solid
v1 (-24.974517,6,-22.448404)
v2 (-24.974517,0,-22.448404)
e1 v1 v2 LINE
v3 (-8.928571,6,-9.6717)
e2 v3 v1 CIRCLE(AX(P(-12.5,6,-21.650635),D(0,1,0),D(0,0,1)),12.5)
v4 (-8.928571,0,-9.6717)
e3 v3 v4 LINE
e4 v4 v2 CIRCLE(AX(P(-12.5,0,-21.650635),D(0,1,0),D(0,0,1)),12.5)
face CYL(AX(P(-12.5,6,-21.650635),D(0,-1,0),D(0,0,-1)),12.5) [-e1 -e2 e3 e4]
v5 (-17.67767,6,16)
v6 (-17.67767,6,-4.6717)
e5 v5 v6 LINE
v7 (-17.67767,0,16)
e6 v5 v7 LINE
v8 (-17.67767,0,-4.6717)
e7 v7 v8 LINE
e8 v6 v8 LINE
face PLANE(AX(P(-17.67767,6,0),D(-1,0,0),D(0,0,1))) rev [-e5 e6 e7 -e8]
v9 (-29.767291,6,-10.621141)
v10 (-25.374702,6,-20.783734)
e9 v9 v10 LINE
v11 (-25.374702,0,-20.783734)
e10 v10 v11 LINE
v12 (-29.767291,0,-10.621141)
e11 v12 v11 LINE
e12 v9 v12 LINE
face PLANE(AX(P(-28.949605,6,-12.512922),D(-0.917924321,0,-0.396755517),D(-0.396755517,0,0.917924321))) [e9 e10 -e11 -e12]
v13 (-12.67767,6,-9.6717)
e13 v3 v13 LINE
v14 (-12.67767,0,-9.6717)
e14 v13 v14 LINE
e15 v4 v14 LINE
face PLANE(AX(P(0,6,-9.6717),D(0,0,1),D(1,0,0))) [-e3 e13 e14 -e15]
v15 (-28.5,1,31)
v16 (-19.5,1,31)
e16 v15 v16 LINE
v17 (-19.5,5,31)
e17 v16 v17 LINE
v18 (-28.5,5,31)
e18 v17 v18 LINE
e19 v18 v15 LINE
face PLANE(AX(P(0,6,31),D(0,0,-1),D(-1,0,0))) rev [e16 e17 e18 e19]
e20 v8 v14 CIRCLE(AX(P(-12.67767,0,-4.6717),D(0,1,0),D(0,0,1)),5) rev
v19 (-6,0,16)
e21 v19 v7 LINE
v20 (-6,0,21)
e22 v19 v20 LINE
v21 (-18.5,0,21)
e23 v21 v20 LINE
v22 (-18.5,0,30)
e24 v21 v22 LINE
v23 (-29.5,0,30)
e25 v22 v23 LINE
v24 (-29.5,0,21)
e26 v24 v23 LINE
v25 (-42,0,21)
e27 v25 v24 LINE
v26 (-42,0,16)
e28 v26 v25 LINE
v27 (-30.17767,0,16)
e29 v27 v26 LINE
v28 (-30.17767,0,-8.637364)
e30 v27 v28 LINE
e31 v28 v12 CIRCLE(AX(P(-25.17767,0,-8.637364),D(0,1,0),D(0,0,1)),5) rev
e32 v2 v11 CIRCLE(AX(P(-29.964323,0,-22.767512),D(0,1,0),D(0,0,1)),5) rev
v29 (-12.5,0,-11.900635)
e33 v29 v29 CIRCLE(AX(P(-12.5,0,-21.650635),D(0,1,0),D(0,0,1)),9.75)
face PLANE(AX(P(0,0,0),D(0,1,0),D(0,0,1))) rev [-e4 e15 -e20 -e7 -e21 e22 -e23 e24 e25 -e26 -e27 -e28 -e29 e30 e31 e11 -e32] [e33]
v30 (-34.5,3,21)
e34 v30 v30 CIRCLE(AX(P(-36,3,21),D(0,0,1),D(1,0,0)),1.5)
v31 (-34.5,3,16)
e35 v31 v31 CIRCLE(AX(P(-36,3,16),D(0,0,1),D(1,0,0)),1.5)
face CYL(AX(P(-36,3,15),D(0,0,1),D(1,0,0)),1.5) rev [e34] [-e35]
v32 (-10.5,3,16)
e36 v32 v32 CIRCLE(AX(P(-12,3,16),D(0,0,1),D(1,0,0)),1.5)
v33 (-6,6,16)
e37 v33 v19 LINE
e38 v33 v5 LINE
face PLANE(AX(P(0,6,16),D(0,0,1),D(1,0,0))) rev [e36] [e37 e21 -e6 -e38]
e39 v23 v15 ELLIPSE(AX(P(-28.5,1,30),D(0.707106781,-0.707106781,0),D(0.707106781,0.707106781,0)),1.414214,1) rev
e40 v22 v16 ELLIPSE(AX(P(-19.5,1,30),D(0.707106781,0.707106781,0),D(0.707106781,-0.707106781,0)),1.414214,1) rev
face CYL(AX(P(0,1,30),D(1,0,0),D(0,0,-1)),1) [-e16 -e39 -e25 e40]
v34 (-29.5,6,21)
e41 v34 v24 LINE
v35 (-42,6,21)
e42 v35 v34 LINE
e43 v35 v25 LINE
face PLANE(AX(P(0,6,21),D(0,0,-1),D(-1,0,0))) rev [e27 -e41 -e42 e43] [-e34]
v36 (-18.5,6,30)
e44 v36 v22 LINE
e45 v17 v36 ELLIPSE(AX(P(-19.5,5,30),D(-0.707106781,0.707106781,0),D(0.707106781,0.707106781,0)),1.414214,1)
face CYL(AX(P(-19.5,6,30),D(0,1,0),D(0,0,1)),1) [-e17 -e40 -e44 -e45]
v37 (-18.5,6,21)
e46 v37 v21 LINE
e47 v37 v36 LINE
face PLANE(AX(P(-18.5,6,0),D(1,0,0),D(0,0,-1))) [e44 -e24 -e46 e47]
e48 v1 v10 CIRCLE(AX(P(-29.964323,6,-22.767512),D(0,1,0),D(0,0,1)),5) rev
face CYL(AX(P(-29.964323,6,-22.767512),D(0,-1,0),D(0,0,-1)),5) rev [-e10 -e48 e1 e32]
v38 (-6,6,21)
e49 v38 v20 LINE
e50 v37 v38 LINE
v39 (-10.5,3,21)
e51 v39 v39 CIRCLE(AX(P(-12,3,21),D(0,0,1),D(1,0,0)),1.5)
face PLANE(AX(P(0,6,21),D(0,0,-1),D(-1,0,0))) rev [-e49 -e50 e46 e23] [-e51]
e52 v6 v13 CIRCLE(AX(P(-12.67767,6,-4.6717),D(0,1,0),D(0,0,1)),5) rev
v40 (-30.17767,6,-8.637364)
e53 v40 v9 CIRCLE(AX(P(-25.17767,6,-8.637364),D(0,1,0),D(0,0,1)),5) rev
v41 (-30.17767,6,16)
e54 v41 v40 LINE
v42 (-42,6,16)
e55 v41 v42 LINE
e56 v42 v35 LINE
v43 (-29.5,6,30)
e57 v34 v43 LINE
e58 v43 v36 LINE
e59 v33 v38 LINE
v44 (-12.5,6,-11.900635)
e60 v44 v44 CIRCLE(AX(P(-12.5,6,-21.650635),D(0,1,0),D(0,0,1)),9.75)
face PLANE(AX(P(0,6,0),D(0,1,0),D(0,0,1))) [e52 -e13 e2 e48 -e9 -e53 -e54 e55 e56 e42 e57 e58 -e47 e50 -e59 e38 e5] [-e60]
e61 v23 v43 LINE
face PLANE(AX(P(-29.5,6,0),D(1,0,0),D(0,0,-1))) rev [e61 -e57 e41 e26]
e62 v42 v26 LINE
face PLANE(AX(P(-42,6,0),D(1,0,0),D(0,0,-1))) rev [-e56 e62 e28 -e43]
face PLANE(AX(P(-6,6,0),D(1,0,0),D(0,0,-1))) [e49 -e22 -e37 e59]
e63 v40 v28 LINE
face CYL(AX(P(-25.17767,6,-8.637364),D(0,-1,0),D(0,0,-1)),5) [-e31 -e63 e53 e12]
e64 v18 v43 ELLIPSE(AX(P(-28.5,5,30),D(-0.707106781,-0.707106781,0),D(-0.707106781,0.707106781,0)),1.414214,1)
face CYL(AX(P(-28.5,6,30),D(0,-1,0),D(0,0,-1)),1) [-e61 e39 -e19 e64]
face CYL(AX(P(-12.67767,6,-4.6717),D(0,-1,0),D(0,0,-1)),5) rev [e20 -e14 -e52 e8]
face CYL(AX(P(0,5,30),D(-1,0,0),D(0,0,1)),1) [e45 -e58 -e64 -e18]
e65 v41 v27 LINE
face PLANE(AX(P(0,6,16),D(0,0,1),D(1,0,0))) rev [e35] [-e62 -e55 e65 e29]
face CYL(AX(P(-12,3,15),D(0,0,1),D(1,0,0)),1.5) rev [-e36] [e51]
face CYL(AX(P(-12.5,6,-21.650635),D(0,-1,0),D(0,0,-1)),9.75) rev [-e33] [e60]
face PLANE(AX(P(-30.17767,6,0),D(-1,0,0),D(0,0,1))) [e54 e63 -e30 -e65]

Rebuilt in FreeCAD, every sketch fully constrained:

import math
import FreeCAD as App
import Part
import Sketcher

V = App.Vector
Q = App.Units.Quantity


def edges_at(feature, points):
    """Names of the edges that pass closest to the given points."""
    edges = feature.Shape.Edges
    near = lambda p: min(range(len(edges)), key=lambda i: edges[i].distToShape(Part.Vertex(*p))[0])
    return sorted({f"Edge{near(p) + 1}" for p in points})

doc = App.newDocument("Part")
body = doc.addObject("PartDesign::Body", "Body")

sketch1 = doc.addObject("Sketcher::SketchObject", "Sketch")
body.addObject(sketch1)
sketch1.AttachmentSupport = (doc.XZ_Plane, [""])
sketch1.MapMode = "FlatFace"
sketch1.addGeometry([
    Part.LineSegment(V(-25.4, -20.8, 0), V(-29.8, -10.6, 0)),
    Part.ArcOfCircle(Part.Circle(V(-25.2, -8.6, 0), V(0, 0, 1), 5), math.radians(-168.06), math.radians(-156.62)),
    Part.ArcOfCircle(Part.Circle(V(-25.2, -8.6, 0), V(0, 0, 1), 5), math.radians(-180), math.radians(-168.06)),
    Part.LineSegment(V(-30.2, -8.6, 0), V(-30.2, 16, 0)),
    Part.LineSegment(V(-30.2, 16, 0), V(-42, 16, 0)),
    Part.LineSegment(V(-42, 16, 0), V(-42, 21, 0)),
    Part.LineSegment(V(-42, 21, 0), V(-29.5, 21, 0)),
    Part.LineSegment(V(-29.5, 21, 0), V(-29.5, 31, 0)),
    Part.LineSegment(V(-29.5, 31, 0), V(-18.5, 31, 0)),
    Part.LineSegment(V(-18.5, 31, 0), V(-18.5, 21, 0)),
    Part.LineSegment(V(-18.5, 21, 0), V(-6, 21, 0)),
    Part.LineSegment(V(-6, 21, 0), V(-6, 16, 0)),
    Part.LineSegment(V(-6, 16, 0), V(-17.7, 16, 0)),
    Part.LineSegment(V(-17.7, 16, 0), V(-17.7, -4.7, 0)),
    Part.ArcOfCircle(Part.Circle(V(-12.7, -4.7, 0), V(0, 0, 1), 5), math.radians(180), math.radians(270)),
    Part.LineSegment(V(-12.7, -9.7, 0), V(-8.9, -9.7, 0)),
    Part.ArcOfCircle(Part.Circle(V(-12.5, -21.7, 0), V(0, 0, 1), 12.5), math.radians(-176), math.radians(73)),
    Part.ArcOfCircle(Part.Circle(V(-30, -22.8, 0), V(0, 0, 1), 5), math.radians(3.66), math.radians(23.38)),
    Part.Circle(V(-12.5, -21.7, 0), V(0, 0, 1), 9.8),
], False)
sketch1.addConstraint([
    Sketcher.Constraint("Tangent", 0, 2, 1, 2),
    Sketcher.Constraint("Tangent", 1, 1, 2, 2),
    Sketcher.Constraint("Tangent", 2, 1, 3, 1),
    Sketcher.Constraint("Coincident", 3, 2, 4, 1),
    Sketcher.Constraint("Coincident", 4, 2, 5, 1),
    Sketcher.Constraint("Coincident", 5, 2, 6, 1),
    Sketcher.Constraint("Coincident", 6, 2, 7, 1),
    Sketcher.Constraint("Coincident", 7, 2, 8, 1),
    Sketcher.Constraint("Coincident", 8, 2, 9, 1),
    Sketcher.Constraint("Coincident", 9, 2, 10, 1),
    Sketcher.Constraint("Coincident", 10, 2, 11, 1),
    Sketcher.Constraint("Coincident", 11, 2, 12, 1),
    Sketcher.Constraint("Coincident", 12, 2, 13, 1),
    Sketcher.Constraint("Tangent", 13, 2, 14, 1),
    Sketcher.Constraint("Tangent", 14, 2, 15, 1),
    Sketcher.Constraint("Coincident", 15, 2, 16, 2),
    Sketcher.Constraint("Tangent", 16, 1, 17, 1),
    Sketcher.Constraint("Tangent", 17, 2, 0, 1),
    Sketcher.Constraint("Vertical", 3),
    Sketcher.Constraint("Horizontal", 4),
    Sketcher.Constraint("Vertical", 5),
    Sketcher.Constraint("Horizontal", 6),
    Sketcher.Constraint("Vertical", 7),
    Sketcher.Constraint("Horizontal", 8),
    Sketcher.Constraint("Vertical", 9),
    Sketcher.Constraint("Horizontal", 10),
    Sketcher.Constraint("Vertical", 11),
    Sketcher.Constraint("Horizontal", 12),
    Sketcher.Constraint("Vertical", 13),
    Sketcher.Constraint("Horizontal", 15),
    Sketcher.Constraint("Coincident", 18, 3, 16, 3),
    Sketcher.Constraint("Equal", 1, 2),
    Sketcher.Constraint("Equal", 2, 14),
    Sketcher.Constraint("Equal", 14, 17),
    Sketcher.Constraint("Horizontal", 6, 2, 9, 2),
    Sketcher.Constraint("Horizontal", 4, 2, 11, 2),
    Sketcher.Constraint("Horizontal", 1, 1, 14, 2),
    Sketcher.Constraint("Equal", 6, 10),
    Sketcher.Constraint("Radius", 1, Q("5 mm")),
    Sketcher.Constraint("Diameter", 18, Q("19.5 mm")),
    Sketcher.Constraint("Radius", 16, Q("12.5 mm")),
    Sketcher.Constraint("DistanceX", 8, 1, 8, 2, Q("11 mm")),
    Sketcher.Constraint("DistanceY", 5, 1, 5, 2, Q("5 mm")),
    Sketcher.Constraint("DistanceY", 7, 1, 7, 2, Q("10 mm")),
    Sketcher.Constraint("DistanceX", 6, 1, 6, 2, Q("12.5 mm")),
    Sketcher.Constraint("DistanceY", -1, 1, 3, 2, Q("16 mm")),
    Sketcher.Constraint("DistanceX", 4, 2, -1, 1, Q("42 mm")),
    Sketcher.Constraint("DistanceX", 16, 3, -1, 1, Q("12.5 mm")),
    Sketcher.Constraint("DistanceX", 1, 3, 14, 3, Q("12.5 mm")),
    Sketcher.Constraint("DistanceX", 15, 1, 15, 2, Q("3.749098 mm")),
    Sketcher.Constraint("DistanceY", 13, 2, 13, 1, Q("20.6717 mm")),
    Sketcher.Constraint("DistanceX", 1, 1, 16, 1, Q("5.094998 mm")),
    Sketcher.Constraint("DistanceX", 4, 2, 4, 1, Q("11.82233 mm")),
    Sketcher.Constraint("DistanceX", 17, 2, -1, 1, Q("25.374702 mm")),
])
pad1 = doc.addObject("PartDesign::Pad", "Pad")
body.addObject(pad1)
pad1.Profile = sketch1
pad1.Length = 6
pad1.Reversed = True

sketch2 = doc.addObject("Sketcher::SketchObject", "Sketch001")
body.addObject(sketch2)
sketch2.AttachmentSupport = (doc.XY_Plane, [""])
sketch2.MapMode = "FlatFace"
sketch2.AttachmentOffset = App.Placement(V(0, 0, 21), App.Rotation())
sketch2.addGeometry([
    Part.Circle(V(-36, 3, 0), V(0, 0, 1), 1.5),
    Part.Circle(V(-12, 3, 0), V(0, 0, 1), 1.5),
], False)
sketch2.addConstraint([
    Sketcher.Constraint("Equal", 0, 1),
    Sketcher.Constraint("Horizontal", 0, 3, 1, 3),
    Sketcher.Constraint("Diameter", 0, Q("3 mm")),
    Sketcher.Constraint("DistanceX", 0, 3, -1, 1, Q("36 mm")),
    Sketcher.Constraint("DistanceY", -1, 1, 0, 3, Q("3 mm")),
    Sketcher.Constraint("DistanceX", 1, 3, -1, 1, Q("12 mm")),
])
pocket1 = doc.addObject("PartDesign::Pocket", "Pocket")
body.addObject(pocket1)
pocket1.Profile = sketch2
pocket1.Length = 6
doc.recompute()

fillet = doc.addObject("PartDesign::Fillet", "Fillet")
body.addObject(fillet)
fillet.Base = (pocket1, edges_at(pocket1, [
    (-24, 0, 31),
    (-18.5, 3, 31),
    (-29.5, 3, 31),
    (-24, 6, 31),
]))
fillet.Radius = 1

doc.recompute()
